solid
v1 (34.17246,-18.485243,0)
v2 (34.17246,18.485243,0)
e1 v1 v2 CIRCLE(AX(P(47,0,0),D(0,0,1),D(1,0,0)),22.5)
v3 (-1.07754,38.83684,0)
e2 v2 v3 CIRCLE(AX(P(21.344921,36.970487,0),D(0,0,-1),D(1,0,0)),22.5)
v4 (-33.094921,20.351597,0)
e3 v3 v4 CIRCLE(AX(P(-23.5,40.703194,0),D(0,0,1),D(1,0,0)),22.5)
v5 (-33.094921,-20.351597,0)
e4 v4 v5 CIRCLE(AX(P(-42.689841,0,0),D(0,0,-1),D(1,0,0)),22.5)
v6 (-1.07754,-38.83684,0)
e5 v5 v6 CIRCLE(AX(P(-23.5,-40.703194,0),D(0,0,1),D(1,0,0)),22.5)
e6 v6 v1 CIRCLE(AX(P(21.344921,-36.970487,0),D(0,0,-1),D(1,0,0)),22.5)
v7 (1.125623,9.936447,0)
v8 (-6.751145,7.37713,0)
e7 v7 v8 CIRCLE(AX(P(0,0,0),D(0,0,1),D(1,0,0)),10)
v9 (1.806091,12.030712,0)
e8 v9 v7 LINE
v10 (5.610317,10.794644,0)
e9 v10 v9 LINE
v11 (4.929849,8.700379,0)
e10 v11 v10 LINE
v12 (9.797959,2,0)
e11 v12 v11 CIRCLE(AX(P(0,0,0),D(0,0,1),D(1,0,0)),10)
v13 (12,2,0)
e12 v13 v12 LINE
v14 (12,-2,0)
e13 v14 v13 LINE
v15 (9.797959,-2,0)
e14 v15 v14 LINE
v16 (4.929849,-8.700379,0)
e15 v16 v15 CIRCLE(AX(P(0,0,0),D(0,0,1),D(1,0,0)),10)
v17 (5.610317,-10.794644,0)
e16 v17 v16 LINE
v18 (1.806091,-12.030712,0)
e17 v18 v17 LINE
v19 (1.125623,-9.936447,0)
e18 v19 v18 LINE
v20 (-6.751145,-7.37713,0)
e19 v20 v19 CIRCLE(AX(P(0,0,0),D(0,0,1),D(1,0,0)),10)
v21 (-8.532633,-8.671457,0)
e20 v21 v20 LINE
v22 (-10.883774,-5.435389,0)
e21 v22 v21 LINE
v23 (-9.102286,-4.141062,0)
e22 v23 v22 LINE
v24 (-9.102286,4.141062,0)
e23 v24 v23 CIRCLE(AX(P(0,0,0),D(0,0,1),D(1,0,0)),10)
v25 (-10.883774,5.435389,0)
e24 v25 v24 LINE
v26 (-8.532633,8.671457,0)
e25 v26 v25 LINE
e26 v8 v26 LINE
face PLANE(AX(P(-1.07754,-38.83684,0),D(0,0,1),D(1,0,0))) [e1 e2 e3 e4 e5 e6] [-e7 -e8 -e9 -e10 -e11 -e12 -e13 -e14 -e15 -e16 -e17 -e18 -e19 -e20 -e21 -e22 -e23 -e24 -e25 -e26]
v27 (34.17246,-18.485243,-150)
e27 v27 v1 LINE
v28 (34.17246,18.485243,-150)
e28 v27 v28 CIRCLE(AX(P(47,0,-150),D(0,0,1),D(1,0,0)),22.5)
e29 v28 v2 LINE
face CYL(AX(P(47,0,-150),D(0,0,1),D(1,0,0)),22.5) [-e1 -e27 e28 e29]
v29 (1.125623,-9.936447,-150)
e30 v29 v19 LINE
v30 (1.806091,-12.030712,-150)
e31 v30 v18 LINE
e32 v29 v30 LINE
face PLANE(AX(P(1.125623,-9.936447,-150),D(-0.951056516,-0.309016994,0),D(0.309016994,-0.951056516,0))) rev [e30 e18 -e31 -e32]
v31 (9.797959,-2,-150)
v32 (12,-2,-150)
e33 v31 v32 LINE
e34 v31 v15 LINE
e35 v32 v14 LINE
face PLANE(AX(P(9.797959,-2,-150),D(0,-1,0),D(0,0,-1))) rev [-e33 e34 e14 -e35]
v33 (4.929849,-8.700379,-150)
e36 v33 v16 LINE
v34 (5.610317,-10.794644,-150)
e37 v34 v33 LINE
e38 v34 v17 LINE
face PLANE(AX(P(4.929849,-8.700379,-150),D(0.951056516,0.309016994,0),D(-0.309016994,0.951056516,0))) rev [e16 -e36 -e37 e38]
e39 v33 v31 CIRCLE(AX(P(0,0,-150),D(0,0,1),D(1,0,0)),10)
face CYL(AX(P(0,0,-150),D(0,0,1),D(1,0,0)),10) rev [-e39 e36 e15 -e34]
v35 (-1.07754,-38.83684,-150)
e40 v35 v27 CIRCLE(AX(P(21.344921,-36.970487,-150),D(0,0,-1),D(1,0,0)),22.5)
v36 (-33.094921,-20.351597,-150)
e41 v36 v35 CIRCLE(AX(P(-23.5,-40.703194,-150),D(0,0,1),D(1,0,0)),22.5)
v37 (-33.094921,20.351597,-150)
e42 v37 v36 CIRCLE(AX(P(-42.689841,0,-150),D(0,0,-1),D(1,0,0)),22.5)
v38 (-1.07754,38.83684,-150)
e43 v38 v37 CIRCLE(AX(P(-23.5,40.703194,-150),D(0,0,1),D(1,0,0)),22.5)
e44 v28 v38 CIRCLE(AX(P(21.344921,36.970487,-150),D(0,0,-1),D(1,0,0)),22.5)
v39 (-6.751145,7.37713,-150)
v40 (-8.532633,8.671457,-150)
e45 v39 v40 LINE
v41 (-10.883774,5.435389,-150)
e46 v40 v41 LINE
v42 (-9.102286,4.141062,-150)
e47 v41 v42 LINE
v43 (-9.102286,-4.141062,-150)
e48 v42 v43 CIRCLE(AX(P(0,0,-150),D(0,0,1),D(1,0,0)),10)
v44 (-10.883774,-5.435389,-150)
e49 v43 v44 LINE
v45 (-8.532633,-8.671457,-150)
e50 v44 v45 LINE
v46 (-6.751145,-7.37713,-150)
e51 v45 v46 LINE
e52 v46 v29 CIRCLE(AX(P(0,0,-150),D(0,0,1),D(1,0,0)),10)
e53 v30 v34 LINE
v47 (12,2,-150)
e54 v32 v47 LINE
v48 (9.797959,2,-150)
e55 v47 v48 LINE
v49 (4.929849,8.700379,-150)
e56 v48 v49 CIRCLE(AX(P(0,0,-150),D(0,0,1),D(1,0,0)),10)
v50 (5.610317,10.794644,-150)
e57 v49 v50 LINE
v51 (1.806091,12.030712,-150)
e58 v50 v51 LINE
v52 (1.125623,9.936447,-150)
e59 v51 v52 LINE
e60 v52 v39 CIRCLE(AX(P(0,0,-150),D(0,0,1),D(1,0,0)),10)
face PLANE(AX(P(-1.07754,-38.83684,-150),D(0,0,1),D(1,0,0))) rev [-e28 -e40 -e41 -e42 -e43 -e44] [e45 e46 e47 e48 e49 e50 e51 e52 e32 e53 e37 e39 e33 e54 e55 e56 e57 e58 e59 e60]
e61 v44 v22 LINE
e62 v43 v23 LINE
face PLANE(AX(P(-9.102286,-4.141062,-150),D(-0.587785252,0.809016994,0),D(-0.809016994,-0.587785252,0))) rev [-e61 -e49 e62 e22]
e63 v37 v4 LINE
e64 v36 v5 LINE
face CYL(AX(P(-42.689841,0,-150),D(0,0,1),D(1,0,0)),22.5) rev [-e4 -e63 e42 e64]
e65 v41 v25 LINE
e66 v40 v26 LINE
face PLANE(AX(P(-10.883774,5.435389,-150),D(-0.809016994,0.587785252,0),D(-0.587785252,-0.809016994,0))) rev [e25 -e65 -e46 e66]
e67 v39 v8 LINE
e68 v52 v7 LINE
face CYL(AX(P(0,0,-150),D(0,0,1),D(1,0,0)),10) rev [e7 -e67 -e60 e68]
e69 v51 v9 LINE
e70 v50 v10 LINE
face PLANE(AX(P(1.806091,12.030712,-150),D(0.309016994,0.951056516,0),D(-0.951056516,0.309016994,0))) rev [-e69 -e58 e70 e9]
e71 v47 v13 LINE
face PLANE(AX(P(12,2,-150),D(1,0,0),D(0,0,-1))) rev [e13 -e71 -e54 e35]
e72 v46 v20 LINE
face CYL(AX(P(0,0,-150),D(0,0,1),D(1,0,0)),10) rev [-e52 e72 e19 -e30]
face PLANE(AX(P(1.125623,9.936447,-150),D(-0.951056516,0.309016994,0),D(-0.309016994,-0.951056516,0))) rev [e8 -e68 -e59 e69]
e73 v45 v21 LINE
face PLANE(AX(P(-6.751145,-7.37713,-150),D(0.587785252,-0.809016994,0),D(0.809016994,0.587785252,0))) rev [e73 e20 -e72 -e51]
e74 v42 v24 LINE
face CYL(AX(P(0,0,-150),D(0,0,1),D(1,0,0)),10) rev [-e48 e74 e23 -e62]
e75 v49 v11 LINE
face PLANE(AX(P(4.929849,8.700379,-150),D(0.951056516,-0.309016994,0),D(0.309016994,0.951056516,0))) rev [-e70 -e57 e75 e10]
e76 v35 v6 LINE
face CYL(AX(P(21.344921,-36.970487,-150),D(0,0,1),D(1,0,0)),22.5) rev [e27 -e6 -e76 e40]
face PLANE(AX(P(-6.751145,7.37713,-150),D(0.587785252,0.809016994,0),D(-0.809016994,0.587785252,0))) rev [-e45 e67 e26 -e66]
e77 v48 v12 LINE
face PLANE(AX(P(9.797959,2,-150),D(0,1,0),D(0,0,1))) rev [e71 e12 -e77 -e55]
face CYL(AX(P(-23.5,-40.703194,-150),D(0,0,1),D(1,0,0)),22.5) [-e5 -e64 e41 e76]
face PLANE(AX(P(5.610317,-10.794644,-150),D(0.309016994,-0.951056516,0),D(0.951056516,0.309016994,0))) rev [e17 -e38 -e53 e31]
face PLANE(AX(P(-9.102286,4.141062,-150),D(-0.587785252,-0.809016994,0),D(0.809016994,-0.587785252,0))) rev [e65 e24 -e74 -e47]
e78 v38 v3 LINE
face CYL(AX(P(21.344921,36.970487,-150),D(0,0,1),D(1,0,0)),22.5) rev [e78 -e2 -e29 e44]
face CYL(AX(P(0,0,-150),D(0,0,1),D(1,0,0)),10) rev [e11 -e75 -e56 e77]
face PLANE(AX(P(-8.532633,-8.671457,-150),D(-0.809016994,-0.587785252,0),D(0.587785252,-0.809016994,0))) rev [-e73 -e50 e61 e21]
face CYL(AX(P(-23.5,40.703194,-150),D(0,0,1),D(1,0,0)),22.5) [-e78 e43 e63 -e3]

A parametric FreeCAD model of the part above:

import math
import FreeCAD as App
import Part
import Sketcher

V = App.Vector
Q = App.Units.Quantity

doc = App.newDocument("Part")
body = doc.addObject("PartDesign::Body", "Body")

# Sketch on XY plane
sketch1 = body.newObject("Sketcher::SketchObject", "Sketch")
sketch1.AttachmentSupport = (doc.getObject("XY_Plane"), [""])
sketch1.MapMode = "FlatFace"
sketch1.addGeometry([
    Part.ArcOfCircle(Part.Circle(V(47, 0, 0), V(0, 0, 1), 22), math.radians(-125), math.radians(125)),  # 0
    Part.ArcOfCircle(Part.Circle(V(21, 37, 0), V(0, 0, 1), 22), math.radians(175), math.radians(305)),  # 1
    Part.ArcOfCircle(Part.Circle(V(-24, 41, 0), V(0, 0, 1), 22), math.radians(-5), math.radians(245)),  # 2
    Part.ArcOfCircle(Part.Circle(V(-43, 0, 0), V(0, 0, 1), 22), math.radians(-65), math.radians(65)),  # 3
    Part.ArcOfCircle(Part.Circle(V(-24, -41, 0), V(0, 0, 1), 22), math.radians(115), math.radians(365)),  # 4
    Part.ArcOfCircle(Part.Circle(V(21, -37, 0), V(0, 0, 1), 22), math.radians(55), math.radians(185)),  # 5
], False)
sketch1.addConstraint([
    Sketcher.Constraint("Tangent", 0, 2, 1, 2),
    Sketcher.Constraint("Tangent", 1, 1, 2, 1),
    Sketcher.Constraint("Tangent", 2, 2, 3, 2),
    Sketcher.Constraint("Tangent", 3, 1, 4, 1),
    Sketcher.Constraint("Tangent", 4, 2, 5, 2),
    Sketcher.Constraint("Tangent", 5, 1, 0, 1),
    Sketcher.Constraint("Equal", 0, 1),
    Sketcher.Constraint("Equal", 1, 2),
    Sketcher.Constraint("Equal", 2, 3),
    Sketcher.Constraint("Equal", 3, 4),
    Sketcher.Constraint("Equal", 4, 5),
    Sketcher.Constraint("Symmetric", 2, 3, 4, 3, -1),
    Sketcher.Constraint("PointOnObject", 0, 3, -1),
    Sketcher.Constraint("Radius", 0, 22.5),
    Sketcher.Constraint("DistanceX", -1, 1, 0, 3, 47.0),
    Sketcher.Constraint("DistanceX", 2, 3, -1, 1, 23.5),
    Sketcher.Constraint("DistanceX", 3, 3, 0, 2, 76.862301),
])
pad1 = body.newObject("PartDesign::Pad", "Pad")
pad1.Profile = sketch1
pad1.Length = 150
pad1.Reversed = True

# Sketch on XY plane
sketch2 = body.newObject("Sketcher::SketchObject", "Sketch001")
sketch2.AttachmentSupport = (doc.getObject("XY_Plane"), [""])
sketch2.MapMode = "FlatFace"
sketch2.addGeometry([
    Part.LineSegment(V(12, 2, 0), V(9.8, 2, 0)),  # 0
    Part.ArcOfCircle(Part.Circle(V(0, 0, 0), V(0, 0, 1), 10), math.radians(12), math.radians(60)),  # 1
    Part.LineSegment(V(4.9, 8.7, 0), V(5.6, 10.8, 0)),  # 2
    Part.LineSegment(V(5.6, 10.8, 0), V(1.8, 12, 0)),  # 3
    Part.LineSegment(V(1.8, 12, 0), V(1.1, 9.9, 0)),  # 4
    Part.ArcOfCircle(Part.Circle(V(0, 0, 0), V(0, 0, 1), 10), math.radians(84), math.radians(132)),  # 5
    Part.LineSegment(V(-6.8, 7.4, 0), V(-8.5, 8.7, 0)),  # 6
    Part.LineSegment(V(-8.5, 8.7, 0), V(-10.9, 5.4, 0)),  # 7
    Part.LineSegment(V(-10.9, 5.4, 0), V(-9.1, 4.1, 0)),  # 8
    Part.ArcOfCircle(Part.Circle(V(0, 0, 0), V(0, 0, 1), 10), math.radians(156), math.radians(204)),  # 9
    Part.LineSegment(V(-9.1, -4.1, 0), V(-10.9, -5.4, 0)),  # 10
    Part.LineSegment(V(-10.9, -5.4, 0), V(-8.5, -8.7, 0)),  # 11
    Part.LineSegment(V(-8.5, -8.7, 0), V(-6.8, -7.4, 0)),  # 12
    Part.ArcOfCircle(Part.Circle(V(0, 0, 0), V(0, 0, 1), 10), math.radians(-132), math.radians(-84)),  # 13
    Part.LineSegment(V(1.1, -9.9, 0), V(1.8, -12, 0)),  # 14
    Part.LineSegment(V(1.8, -12, 0), V(5.6, -10.8, 0)),  # 15
    Part.LineSegment(V(5.6, -10.8, 0), V(4.9, -8.7, 0)),  # 16
    Part.ArcOfCircle(Part.Circle(V(0, 0, 0), V(0, 0, 1), 10), math.radians(-60), math.radians(-12)),  # 17
    Part.LineSegment(V(9.8, -2, 0), V(12, -2, 0)),  # 18
    Part.LineSegment(V(12, -2, 0), V(12, 2, 0)),  # 19
], False)
sketch2.addConstraint([
    Sketcher.Constraint("Coincident", 0, 2, 1, 1),
    Sketcher.Constraint("Coincident", 1, 2, 2, 1),
    Sketcher.Constraint("Coincident", 2, 2, 3, 1),
    Sketcher.Constraint("Coincident", 3, 2, 4, 1),
    Sketcher.Constraint("Coincident", 4, 2, 5, 1),
    Sketcher.Constraint("Coincident", 5, 2, 6, 1),
    Sketcher.Constraint("Coincident", 6, 2, 7, 1),
    Sketcher.Constraint("Coincident", 7, 2, 8, 1),
    Sketcher.Constraint("Coincident", 8, 2, 9, 1),
    Sketcher.Constraint("Coincident", 9, 2, 10, 1),
    Sketcher.Constraint("Coincident", 10, 2, 11, 1),
    Sketcher.Constraint("Coincident", 11, 2, 12, 1),
    Sketcher.Constraint("Coincident", 12, 2, 13, 1),
    Sketcher.Constraint("Coincident", 13, 2, 14, 1),
    Sketcher.Constraint("Coincident", 14, 2, 15, 1),
    Sketcher.Constraint("Coincident", 15, 2, 16, 1),
    Sketcher.Constraint("Coincident", 16, 2, 17, 1),
    Sketcher.Constraint("Coincident", 17, 2, 18, 1),
    Sketcher.Constraint("Coincident", 18, 2, 19, 1),
    Sketcher.Constraint("Coincident", 19, 2, 0, 1),
    Sketcher.Constraint("Horizontal", 0),
    Sketcher.Constraint("Horizontal", 18),
    Sketcher.Constraint("Vertical", 19),
    Sketcher.Constraint("Coincident", 1, 3, -1, 1),
    Sketcher.Constraint("Coincident", 5, 3, -1, 1),
    Sketcher.Constraint("Coincident", 9, 3, -1, 1),
    Sketcher.Constraint("Coincident", 13, 3, -1, 1),
    Sketcher.Constraint("Coincident", 17, 3, -1, 1),
    Sketcher.Constraint("Equal", 1, 5),
    Sketcher.Constraint("Equal", 5, 9),
    Sketcher.Constraint("Equal", 9, 13),
    Sketcher.Constraint("Equal", 13, 17),
    Sketcher.Constraint("Symmetric", 7, 2, 10, 2, -1),
    Sketcher.Constraint("Symmetric", 6, 2, 11, 2, -1),
    Sketcher.Constraint("Symmetric", 3, 2, 14, 2, -1),
    Sketcher.Constraint("Symmetric", 2, 2, 15, 2, -1),
    Sketcher.Constraint("Perpendicular", 2, 3),
    Sketcher.Constraint("Perpendicular", 3, 4),
    Sketcher.Constraint("Perpendicular", 6, 7),
    Sketcher.Constraint("Perpendicular", 7, 8),
    Sketcher.Constraint("Perpendicular", 10, 11),
    Sketcher.Constraint("Perpendicular", 11, 12),
    Sketcher.Constraint("Perpendicular", 14, 15),
    Sketcher.Constraint("Perpendicular", 15, 16),
    Sketcher.Constraint("Vertical", 0, 2, 17, 2),
    Sketcher.Constraint("Equal", 2, 4),
    Sketcher.Constraint("Equal", 4, 6),
    Sketcher.Constraint("Equal", 3, 7),
    Sketcher.Constraint("Equal", 6, 8),
    Sketcher.Constraint("Radius", 1, 10.0),
    Sketcher.Constraint("DistanceY", 19, 1, 19, 2, 4.0),
    Sketcher.Constraint("Angle", 2, Q("72 deg")),
    Sketcher.Constraint("Angle", 6, Q("144 deg")),
    Sketcher.Constraint("Distance", 3, 4.0),
    Sketcher.Constraint("DistanceX", -1, 1, 18, 2, 12.0),
    Sketcher.Constraint("Distance", 2, 2.202041),
])
pocket1 = body.newObject("PartDesign::Pocket", "Pocket")
pocket1.Profile = sketch2
pocket1.Type = "ThroughAll"

doc.recompute()
